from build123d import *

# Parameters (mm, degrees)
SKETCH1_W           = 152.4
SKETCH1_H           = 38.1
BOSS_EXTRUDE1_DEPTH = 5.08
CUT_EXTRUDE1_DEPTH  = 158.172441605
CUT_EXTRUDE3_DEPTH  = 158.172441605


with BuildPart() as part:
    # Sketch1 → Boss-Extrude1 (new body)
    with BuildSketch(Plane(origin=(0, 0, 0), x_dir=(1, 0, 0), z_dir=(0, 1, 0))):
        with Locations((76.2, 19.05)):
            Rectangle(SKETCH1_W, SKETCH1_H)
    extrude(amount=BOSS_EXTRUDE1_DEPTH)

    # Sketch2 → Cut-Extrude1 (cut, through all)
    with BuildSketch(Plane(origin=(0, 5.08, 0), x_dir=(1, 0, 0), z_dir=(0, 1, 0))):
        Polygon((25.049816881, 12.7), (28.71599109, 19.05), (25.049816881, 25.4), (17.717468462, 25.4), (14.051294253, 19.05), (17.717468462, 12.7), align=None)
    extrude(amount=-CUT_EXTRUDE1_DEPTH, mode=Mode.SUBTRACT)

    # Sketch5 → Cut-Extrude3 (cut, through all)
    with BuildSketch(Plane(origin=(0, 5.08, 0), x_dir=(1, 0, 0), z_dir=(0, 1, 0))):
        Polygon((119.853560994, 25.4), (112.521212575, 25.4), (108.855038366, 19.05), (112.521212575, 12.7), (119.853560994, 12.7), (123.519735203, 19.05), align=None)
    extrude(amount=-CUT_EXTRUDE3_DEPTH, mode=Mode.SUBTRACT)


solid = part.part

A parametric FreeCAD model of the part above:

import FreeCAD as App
import Part
import Sketcher
Q = App.Units.Quantity


def add_polygon(sketch, points):
    """Adds a closed chain of lines whose ends are joined by coincident constraints."""
    first, n = sketch.GeometryCount, len(points)
    for a, b in zip(points, points[1:] + points[:1]):
        sketch.addGeometry(Part.LineSegment(App.Vector(*a, 0), App.Vector(*b, 0)), False)
    for i in range(n):
        sketch.addConstraint(Sketcher.Constraint("Coincident", first + i, 2, first + (i + 1) % n, 1))

doc = App.newDocument("Part")
params = doc.addObject("Spreadsheet::Sheet", "Params")
for row, (alias, value) in enumerate([
    ("sketch1_width", "6 in"),
    ("sketch1_height", "1.5 in"),
    ("pad1_length", "0.2 in"),
], start=1):
    params.set(f"A{row}", alias)
    params.set(f"B{row}", "=" + value)
    params.setAlias(f"B{row}", alias)

body = doc.addObject("PartDesign::Body", "Body")

sketch1 = doc.addObject("Sketcher::SketchObject", "Sketch")
body.addObject(sketch1)
sketch1.AttachmentSupport = (doc.XZ_Plane, [""])
sketch1.MapMode = "FlatFace"
add_polygon(sketch1, [(0, -38.1), (0, 0), (152.4, 0), (152.4, -38.1)])
sketch1.addConstraint([
    Sketcher.Constraint("Vertical", 0),
    Sketcher.Constraint("Horizontal", 1),
    Sketcher.Constraint("Vertical", 2),
    Sketcher.Constraint("Horizontal", 3),
    Sketcher.Constraint("Coincident", 0, 2, -1, 1),
    Sketcher.Constraint("DistanceX", 1, 1, 1, 2, Q("6 in")),
    Sketcher.Constraint("DistanceY", 0, 1, 0, 2, Q("1.5 in")),
])
sketch1.setExpression("Constraints[9]", "Params.sketch1_width")
sketch1.setExpression("Constraints[10]", "Params.sketch1_height")
pad1 = doc.addObject("PartDesign::Pad", "Pad")
body.addObject(pad1)
pad1.Profile = sketch1
pad1.setExpression("Length", "Params.pad1_length")
pad1.Reversed = True

sketch2 = doc.addObject("Sketcher::SketchObject", "Sketch001")
body.addObject(sketch2)
sketch2.AttachmentSupport = (doc.XZ_Plane, [""])
sketch2.MapMode = "FlatFace"
sketch2.AttachmentOffset = App.Placement(App.Vector(0, 0, -0.2 * 25.4), App.Rotation())
add_polygon(sketch2, [(25.049817, -12.7), (28.715991, -19.05), (25.049817, -25.4), (17.717468, -25.4), (14.051294, -19.05), (17.717468, -12.7)])
sketch2.addConstraint([
    Sketcher.Constraint("Horizontal", 2),
    Sketcher.Constraint("Horizontal", 5),
    Sketcher.Constraint("Parallel", 0, 3),
    Sketcher.Constraint("Parallel", 1, 4),
    Sketcher.Constraint("Horizontal", 0, 2, 3, 2),
    Sketcher.Constraint("Vertical", 2, 2, 4, 2),
    Sketcher.Constraint("Vertical", 1, 2, 5, 2),
    Sketcher.Constraint("DistanceY", 1, 2, -1, 1, Q("1 in")),
    Sketcher.Constraint("Angle", 0, Q("-60 deg")),
    Sketcher.Constraint("DistanceY", 4, 2, -1, 1, Q("0.5 in")),
    Sketcher.Constraint("DistanceX", 2, 2, 2, 1, Q("7.332348 mm")),
    Sketcher.Constraint("DistanceX", -1, 1, 0, 2, Q("28.715991 mm")),
])
pocket1 = doc.addObject("PartDesign::Pocket", "Pocket")
body.addObject(pocket1)
pocket1.Profile = sketch2
pocket1.Type = "ThroughAll"
pocket1.Reversed = True

sketch3 = doc.addObject("Sketcher::SketchObject", "Sketch002")
body.addObject(sketch3)
sketch3.AttachmentSupport = (doc.XZ_Plane, [""])
sketch3.MapMode = "FlatFace"
sketch3.AttachmentOffset = App.Placement(App.Vector(0, 0, -0.2 * 25.4), App.Rotation())
add_polygon(sketch3, [(119.853561, -25.4), (112.521213, -25.4), (108.855038, -19.05), (112.521213, -12.7), (119.853561, -12.7), (123.519735, -19.05)])
sketch3.addConstraint([
    Sketcher.Constraint("Horizontal", 0),
    Sketcher.Constraint("Horizontal", 3),
    Sketcher.Constraint("Parallel", 1, 4),
    Sketcher.Constraint("Parallel", 2, 5),
    Sketcher.Constraint("Horizontal", 1, 2, 4, 2),
    Sketcher.Constraint("Vertical", 0, 2, 2, 2),
    Sketcher.Constraint("Vertical", 3, 2, 5, 2),
    Sketcher.Constraint("DistanceY", 0, 2, -1, 1, Q("1 in")),
    Sketcher.Constraint("Angle", 1, Q("120 deg")),
    Sketcher.Constraint("DistanceY", 2, 2, -1, 1, Q("0.5 in")),
    Sketcher.Constraint("DistanceX", 0, 2, 0, 1, Q("7.332348 mm")),
    Sketcher.Constraint("DistanceX", -1, 1, 1, 2, Q("108.855038 mm")),
])
pocket2 = doc.addObject("PartDesign::Pocket", "Pocket001")
body.addObject(pocket2)
pocket2.Profile = sketch3
pocket2.Type = "ThroughAll"
pocket2.Reversed = True

doc.recompute()
